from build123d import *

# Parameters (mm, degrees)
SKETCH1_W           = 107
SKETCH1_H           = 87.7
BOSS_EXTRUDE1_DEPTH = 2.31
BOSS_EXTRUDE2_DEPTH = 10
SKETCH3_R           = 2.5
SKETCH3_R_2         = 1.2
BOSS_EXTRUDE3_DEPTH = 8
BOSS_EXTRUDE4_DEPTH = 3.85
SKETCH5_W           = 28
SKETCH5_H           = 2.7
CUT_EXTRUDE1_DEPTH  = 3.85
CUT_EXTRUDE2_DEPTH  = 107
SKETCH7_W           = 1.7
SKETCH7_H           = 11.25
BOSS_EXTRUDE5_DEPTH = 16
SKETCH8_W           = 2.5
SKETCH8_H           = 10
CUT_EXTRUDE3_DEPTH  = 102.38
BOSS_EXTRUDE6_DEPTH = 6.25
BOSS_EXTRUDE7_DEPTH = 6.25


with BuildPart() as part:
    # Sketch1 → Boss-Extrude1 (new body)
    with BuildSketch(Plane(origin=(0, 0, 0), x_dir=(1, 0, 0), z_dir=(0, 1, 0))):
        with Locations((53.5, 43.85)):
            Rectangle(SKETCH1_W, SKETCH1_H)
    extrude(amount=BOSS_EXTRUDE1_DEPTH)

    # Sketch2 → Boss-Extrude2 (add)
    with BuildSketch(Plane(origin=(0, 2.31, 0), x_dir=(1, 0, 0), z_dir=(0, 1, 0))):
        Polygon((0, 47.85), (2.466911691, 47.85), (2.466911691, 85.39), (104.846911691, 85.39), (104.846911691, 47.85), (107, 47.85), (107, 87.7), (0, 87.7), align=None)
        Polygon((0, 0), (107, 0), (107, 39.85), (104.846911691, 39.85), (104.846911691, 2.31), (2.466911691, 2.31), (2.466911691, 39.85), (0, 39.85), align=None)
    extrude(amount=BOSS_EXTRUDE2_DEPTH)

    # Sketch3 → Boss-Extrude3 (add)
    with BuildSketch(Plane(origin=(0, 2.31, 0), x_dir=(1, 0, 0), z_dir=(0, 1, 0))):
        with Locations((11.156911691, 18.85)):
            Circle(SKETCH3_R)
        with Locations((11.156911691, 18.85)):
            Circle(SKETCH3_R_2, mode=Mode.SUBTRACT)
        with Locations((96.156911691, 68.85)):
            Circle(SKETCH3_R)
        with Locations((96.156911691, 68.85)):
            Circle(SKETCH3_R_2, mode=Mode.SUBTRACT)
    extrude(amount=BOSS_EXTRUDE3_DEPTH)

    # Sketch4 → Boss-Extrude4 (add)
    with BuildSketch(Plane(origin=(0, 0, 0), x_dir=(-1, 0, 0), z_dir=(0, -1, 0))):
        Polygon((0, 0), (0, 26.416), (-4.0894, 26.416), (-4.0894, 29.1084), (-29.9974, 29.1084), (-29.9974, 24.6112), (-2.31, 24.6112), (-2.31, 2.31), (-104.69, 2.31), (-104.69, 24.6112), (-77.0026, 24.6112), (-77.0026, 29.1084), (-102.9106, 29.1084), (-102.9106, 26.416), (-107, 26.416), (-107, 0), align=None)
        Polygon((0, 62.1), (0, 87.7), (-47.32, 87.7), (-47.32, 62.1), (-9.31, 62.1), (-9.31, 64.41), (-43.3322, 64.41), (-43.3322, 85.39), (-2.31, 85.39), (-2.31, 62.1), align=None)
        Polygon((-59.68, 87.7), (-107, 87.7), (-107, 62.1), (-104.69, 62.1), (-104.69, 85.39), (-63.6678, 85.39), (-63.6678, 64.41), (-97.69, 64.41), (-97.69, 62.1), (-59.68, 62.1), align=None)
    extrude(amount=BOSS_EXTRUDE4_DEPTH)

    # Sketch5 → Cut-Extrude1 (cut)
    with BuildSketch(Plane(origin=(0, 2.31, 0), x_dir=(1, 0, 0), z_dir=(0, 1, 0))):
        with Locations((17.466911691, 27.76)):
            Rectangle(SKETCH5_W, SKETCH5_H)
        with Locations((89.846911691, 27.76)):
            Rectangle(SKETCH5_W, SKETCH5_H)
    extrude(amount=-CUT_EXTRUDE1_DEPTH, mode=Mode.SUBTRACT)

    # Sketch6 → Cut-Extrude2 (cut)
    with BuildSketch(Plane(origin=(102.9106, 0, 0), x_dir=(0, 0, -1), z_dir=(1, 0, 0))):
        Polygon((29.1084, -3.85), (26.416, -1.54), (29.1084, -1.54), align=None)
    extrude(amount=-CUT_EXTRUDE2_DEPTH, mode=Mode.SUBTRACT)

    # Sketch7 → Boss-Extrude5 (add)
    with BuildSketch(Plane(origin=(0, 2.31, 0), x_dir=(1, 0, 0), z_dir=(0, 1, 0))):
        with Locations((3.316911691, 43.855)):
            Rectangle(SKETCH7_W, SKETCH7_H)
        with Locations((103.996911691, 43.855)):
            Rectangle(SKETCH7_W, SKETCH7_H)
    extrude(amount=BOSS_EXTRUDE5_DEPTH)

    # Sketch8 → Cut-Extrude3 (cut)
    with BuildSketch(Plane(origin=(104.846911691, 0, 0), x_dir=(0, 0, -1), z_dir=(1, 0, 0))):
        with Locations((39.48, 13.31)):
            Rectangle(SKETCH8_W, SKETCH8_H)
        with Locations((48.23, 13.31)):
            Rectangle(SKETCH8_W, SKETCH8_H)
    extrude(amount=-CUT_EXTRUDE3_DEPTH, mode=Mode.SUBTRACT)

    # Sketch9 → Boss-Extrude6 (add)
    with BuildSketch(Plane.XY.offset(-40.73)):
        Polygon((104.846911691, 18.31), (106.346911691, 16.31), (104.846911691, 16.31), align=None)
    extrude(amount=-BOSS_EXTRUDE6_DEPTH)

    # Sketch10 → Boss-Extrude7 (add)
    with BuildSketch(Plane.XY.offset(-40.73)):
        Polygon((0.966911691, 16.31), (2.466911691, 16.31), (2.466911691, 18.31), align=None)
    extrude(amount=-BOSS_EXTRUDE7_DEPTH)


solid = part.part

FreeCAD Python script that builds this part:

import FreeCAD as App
import Part
import Sketcher
from FreeCAD import Vector


def add_polygon(sketch, points):
    """Adds a closed chain of lines whose ends are joined by coincident constraints."""
    first, n = sketch.GeometryCount, len(points)
    for a, b in zip(points, points[1:] + points[:1]):
        sketch.addGeometry(Part.LineSegment(App.Vector(*a, 0), App.Vector(*b, 0)), False)
    for i in range(n):
        sketch.addConstraint(Sketcher.Constraint("Coincident", first + i, 2, first + (i + 1) % n, 1))

doc = App.newDocument("Part")
params = doc.addObject("Spreadsheet::Sheet", "Params")
for row, (alias, value) in enumerate([
    ("sketch1_width", "107 mm"),
    ("sketch1_height", "87.7 mm"),
    ("pad1_length", "2.31 mm"),
    ("sketch2_width", "107 mm"),
    ("sketch2_width2", "102.38 mm"),
    ("sketch2_height", "37.54 mm"),
    ("sketch2_height2", "39.85 mm"),
    ("pad2_length", "10 mm"),
    ("sketch3_diameter", "5 mm"),
    ("sketch3_diameter2", "2.4 mm"),
    ("pad3_length", "8 mm"),
    ("sketch4_width", "107 mm"),
    ("sketch4_height", "25.6 mm"),
    ("sketch4_width2", "102.38 mm"),
    ("sketch4_width3", "47.32 mm"),
    ("sketch4_height2", "20.98 mm"),
    ("pad4_length", "3.85 mm"),
    ("sketch5_width", "28 mm"),
    ("sketch5_height", "2.7 mm"),
    ("pocket1_length", "3.85 mm"),
    ("sketch6_width", "2.31 mm"),
    ("pocket2_length", "107 mm"),
    ("sketch7_width", "1.7 mm"),
    ("sketch7_height", "11.25 mm"),
    ("pad5_length", "16 mm"),
    ("sketch8_width", "10 mm"),
    ("sketch8_height", "2.5 mm"),
    ("pocket3_length", "102.38 mm"),
    ("sketch9_height", "2 mm"),
    ("sketch9_width", "1.5 mm"),
    ("pad6_length", "6.25 mm"),
    ("sketch10_height", "2 mm"),
    ("sketch10_width", "1.5 mm"),
    ("pad7_length", "6.25 mm"),
], start=1):
    params.set(f"A{row}", alias)
    params.set(f"B{row}", "=" + value)
    params.setAlias(f"B{row}", alias)

body = doc.addObject("PartDesign::Body", "Body")

# Sketch on XZ plane
sketch1 = doc.addObject("Sketcher::SketchObject", "Sketch")
body.addObject(sketch1)
sketch1.AttachmentSupport = (doc.XZ_Plane, [""])
sketch1.MapMode = "FlatFace"
add_polygon(sketch1, [(0, -88), (0, 0), (107, 0), (107, -88)])  # lines 0-3
sketch1.addConstraint(Sketcher.Constraint("Vertical", 0))
sketch1.addConstraint(Sketcher.Constraint("Horizontal", 1))
sketch1.addConstraint(Sketcher.Constraint("Vertical", 2))
sketch1.addConstraint(Sketcher.Constraint("Horizontal", 3))
sketch1.addConstraint(Sketcher.Constraint("Coincident", 0, 2, -1, 1))
sketch1.addConstraint(Sketcher.Constraint("DistanceX", 1, 1, 1, 2, 107.0))
sketch1.addConstraint(Sketcher.Constraint("DistanceY", 0, 1, 0, 2, 87.7))
sketch1.setExpression("Constraints[9]", "Params.sketch1_width")
sketch1.setExpression("Constraints[10]", "Params.sketch1_height")
pad1 = doc.addObject("PartDesign::Pad", "Pad")
body.addObject(pad1)
pad1.Profile = sketch1
pad1.setExpression("Length", "Params.pad1_length")
pad1.Reversed = True

# Sketch on XZ plane
sketch2 = doc.addObject("Sketcher::SketchObject", "Sketch001")
body.addObject(sketch2)
sketch2.AttachmentSupport = (doc.XZ_Plane, [""])
sketch2.MapMode = "FlatFace"
sketch2.AttachmentOffset = App.Placement(Vector(0, 0, -2.31), App.Rotation())
add_polygon(sketch2, [(0, -47.9), (2.5, -47.9), (2.5, -85.4), (104.8, -85.4), (104.8, -47.9), (107, -47.9), (107, -87.7), (0, -87.7)])  # lines 0-7
add_polygon(sketch2, [(0, 0), (107, 0), (107, -39.9), (104.8, -39.9), (104.8, -2.3), (2.5, -2.3), (2.5, -39.9), (0, -39.9)])  # lines 8-15
sketch2.addConstraint(Sketcher.Constraint("Horizontal", 0))
sketch2.addConstraint(Sketcher.Constraint("Vertical", 1))
sketch2.addConstraint(Sketcher.Constraint("Horizontal", 2))
sketch2.addConstraint(Sketcher.Constraint("Vertical", 3))
sketch2.addConstraint(Sketcher.Constraint("Horizontal", 4))
sketch2.addConstraint(Sketcher.Constraint("Vertical", 5))
sketch2.addConstraint(Sketcher.Constraint("Horizontal", 6))
sketch2.addConstraint(Sketcher.Constraint("Vertical", 7))
sketch2.addConstraint(Sketcher.Constraint("Horizontal", 8))
sketch2.addConstraint(Sketcher.Constraint("Vertical", 9))
sketch2.addConstraint(Sketcher.Constraint("Horizontal", 10))
sketch2.addConstraint(Sketcher.Constraint("Vertical", 11))
sketch2.addConstraint(Sketcher.Constraint("Horizontal", 12))
sketch2.addConstraint(Sketcher.Constraint("Vertical", 13))
sketch2.addConstraint(Sketcher.Constraint("Horizontal", 14))
sketch2.addConstraint(Sketcher.Constraint("Vertical", 15))
sketch2.addConstraint(Sketcher.Constraint("Coincident", 15, 2, -1, 1))
sketch2.addConstraint(Sketcher.Constraint("PointOnObject", 6, 2, -2))
sketch2.addConstraint(Sketcher.Constraint("Horizontal", 0, 2, 3, 2))
sketch2.addConstraint(Sketcher.Constraint("Horizontal", 10, 2, 13, 2))
sketch2.addConstraint(Sketcher.Constraint("Vertical", 5, 2, 8, 2))
sketch2.addConstraint(Sketcher.Constraint("Vertical", 3, 2, 10, 2))
sketch2.addConstraint(Sketcher.Constraint("Vertical", 1, 2, 12, 2))
sketch2.addConstraint(Sketcher.Constraint("Equal", 7, 9))
sketch2.addConstraint(Sketcher.Constraint("Equal", 3, 11))
sketch2.addConstraint(Sketcher.Constraint("DistanceX", 6, 2, 6, 1, 107.0))
sketch2.addConstraint(Sketcher.Constraint("DistanceY", 4, 2, 9, 2, 8.0))
sketch2.addConstraint(Sketcher.Constraint("DistanceX", 2, 1, 2, 2, 102.38))
sketch2.addConstraint(Sketcher.Constraint("DistanceY", 1, 2, 1, 1, 37.54))
sketch2.addConstraint(Sketcher.Constraint("DistanceY", 5, 2, 5, 1, 39.85))
sketch2.addConstraint(Sketcher.Constraint("DistanceX", 0, 1, 0, 2, 2.466912))
sketch2.setExpression("Constraints[41]", "Params.sketch2_width")
sketch2.setExpression("Constraints[43]", "Params.sketch2_width2")
sketch2.setExpression("Constraints[44]", "Params.sketch2_height")
sketch2.setExpression("Constraints[45]", "Params.sketch2_height2")
pad2 = doc.addObject("PartDesign::Pad", "Pad001")
body.addObject(pad2)
pad2.Profile = sketch2
pad2.setExpression("Length", "Params.pad2_length")
pad2.Reversed = True

# Sketch on XZ plane
sketch3 = doc.addObject("Sketcher::SketchObject", "Sketch002")
body.addObject(sketch3)
sketch3.AttachmentSupport = (doc.XZ_Plane, [""])
sketch3.MapMode = "FlatFace"
sketch3.AttachmentOffset = App.Placement(Vector(0, 0, -2.31), App.Rotation())
sketch3.addGeometry(Part.Circle(Vector(11.2, -18.9, 0), Vector(0, 0, 1), 2.5), False)
sketch3.addGeometry(Part.Circle(Vector(11.2, -18.9, 0), Vector(0, 0, 1), 1.2), False)
sketch3.addGeometry(Part.Circle(Vector(96.2, -68.8, 0), Vector(0, 0, 1), 2.5), False)
sketch3.addGeometry(Part.Circle(Vector(96.2, -68.8, 0), Vector(0, 0, 1), 1.2), False)
sketch3.addConstraint(Sketcher.Constraint("Coincident", 1, 3, 0, 3))
sketch3.addConstraint(Sketcher.Constraint("Coincident", 3, 3, 2, 3))
sketch3.addConstraint(Sketcher.Constraint("Equal", 0, 2))
sketch3.addConstraint(Sketcher.Constraint("Equal", 1, 3))
sketch3.addConstraint(Sketcher.Constraint("Diameter", 0, 5.0))
sketch3.addConstraint(Sketcher.Constraint("Diameter", 1, 2.4))
sketch3.addConstraint(Sketcher.Constraint("DistanceX", 0, 3, 2, 3, 85.0))
sketch3.addConstraint(Sketcher.Constraint("DistanceY", 2, 3, 0, 3, 50.0))
sketch3.addConstraint(Sketcher.Constraint("DistanceY", 0, 3, -1, 1, 18.85))
sketch3.addConstraint(Sketcher.Constraint("DistanceX", -1, 1, 0, 3, 11.156912))
sketch3.setExpression("Constraints[4]", "Params.sketch3_diameter")
sketch3.setExpression("Constraints[5]", "Params.sketch3_diameter2")
pad3 = doc.addObject("PartDesign::Pad", "Pad002")
body.addObject(pad3)
pad3.Profile = sketch3
pad3.setExpression("Length", "Params.pad3_length")
pad3.Reversed = True

# Sketch on XZ plane
sketch4 = doc.addObject("Sketcher::SketchObject", "Sketch003")
body.addObject(sketch4)
sketch4.AttachmentSupport = (doc.XZ_Plane, [""])
sketch4.MapMode = "FlatFace"
add_polygon(sketch4, [(0, 0), (0, -26.4), (4.1, -26.4), (4.1, -29.1), (30, -29.1), (30, -24.6), (2.3, -24.6), (2.3, -2.3), (104.7, -2.3), (104.7, -24.6), (77, -24.6), (77, -29.1), (102.9, -29.1), (102.9, -26.4), (107, -26.4), (107, 0)])  # lines 0-15
add_polygon(sketch4, [(0, -62.1), (0, -87.7), (47.3, -87.7), (47.3, -62.1), (9.3, -62.1), (9.3, -64.4), (43.3, -64.4), (43.3, -85.4), (2.3, -85.4), (2.3, -62.1)])  # lines 16-25
add_polygon(sketch4, [(59.7, -87.7), (107, -87.7), (107, -62.1), (104.7, -62.1), (104.7, -85.4), (63.7, -85.4), (63.7, -64.4), (97.7, -64.4), (97.7, -62.1), (59.7, -62.1)])  # lines 26-35
sketch4.addConstraint(Sketcher.Constraint("Vertical", 0))
sketch4.addConstraint(Sketcher.Constraint("Horizontal", 1))
sketch4.addConstraint(Sketcher.Constraint("Vertical", 2))
sketch4.addConstraint(Sketcher.Constraint("Horizontal", 3))
sketch4.addConstraint(Sketcher.Constraint("Vertical", 4))
sketch4.addConstraint(Sketcher.Constraint("Horizontal", 5))
sketch4.addConstraint(Sketcher.Constraint("Vertical", 6))
sketch4.addConstraint(Sketcher.Constraint("Horizontal", 7))
sketch4.addConstraint(Sketcher.Constraint("Vertical", 8))
sketch4.addConstraint(Sketcher.Constraint("Horizontal", 9))
sketch4.addConstraint(Sketcher.Constraint("Vertical", 10))
sketch4.addConstraint(Sketcher.Constraint("Horizontal", 11))
sketch4.addConstraint(Sketcher.Constraint("Vertical", 12))
sketch4.addConstraint(Sketcher.Constraint("Horizontal", 13))
sketch4.addConstraint(Sketcher.Constraint("Vertical", 14))
sketch4.addConstraint(Sketcher.Constraint("Horizontal", 15))
sketch4.addConstraint(Sketcher.Constraint("Vertical", 16))
sketch4.addConstraint(Sketcher.Constraint("Horizontal", 17))
sketch4.addConstraint(Sketcher.Constraint("Vertical", 18))
sketch4.addConstraint(Sketcher.Constraint("Horizontal", 19))
sketch4.addConstraint(Sketcher.Constraint("Vertical", 20))
sketch4.addConstraint(Sketcher.Constraint("Horizontal", 21))
sketch4.addConstraint(Sketcher.Constraint("Vertical", 22))
sketch4.addConstraint(Sketcher.Constraint("Horizontal", 23))
sketch4.addConstraint(Sketcher.Constraint("Vertical", 24))
sketch4.addConstraint(Sketcher.Constraint("Horizontal", 25))
sketch4.addConstraint(Sketcher.Constraint("Horizontal", 26))
sketch4.addConstraint(Sketcher.Constraint("Vertical", 27))
sketch4.addConstraint(Sketcher.Constraint("Horizontal", 28))
sketch4.addConstraint(Sketcher.Constraint("Vertical", 29))
sketch4.addConstraint(Sketcher.Constraint("Horizontal", 30))
sketch4.addConstraint(Sketcher.Constraint("Vertical", 31))
sketch4.addConstraint(Sketcher.Constraint("Horizontal", 32))
sketch4.addConstraint(Sketcher.Constraint("Vertical", 33))
sketch4.addConstraint(Sketcher.Constraint("Horizontal", 34))
sketch4.addConstraint(Sketcher.Constraint("Vertical", 35))
sketch4.addConstraint(Sketcher.Constraint("Coincident", 15, 2, -1, 1))
sketch4.addConstraint(Sketcher.Constraint("PointOnObject", 16, 2, -2))
sketch4.addConstraint(Sketcher.Constraint("Horizontal", 5, 2, 8, 2))
sketch4.addConstraint(Sketcher.Constraint("Horizontal", 3, 2, 10, 2))
sketch4.addConstraint(Sketcher.Constraint("Horizontal", 1, 2, 12, 2))
sketch4.addConstraint(Sketcher.Constraint("Horizontal", 19, 2, 24, 2))
sketch4.addConstraint(Sketcher.Constraint("Horizontal", 17, 2, 26, 2))
sketch4.addConstraint(Sketcher.Constraint("Horizontal", 25, 2, 27, 2))
sketch4.addConstraint(Sketcher.Constraint("Horizontal", 23, 2, 29, 2))
sketch4.addConstraint(Sketcher.Constraint("Horizontal", 21, 2, 31, 2))
sketch4.addConstraint(Sketcher.Constraint("Horizontal", 28, 2, 33, 2))
sketch4.addConstraint(Sketcher.Constraint("Vertical", 6, 2, 23, 2))
sketch4.addConstraint(Sketcher.Constraint("Vertical", 14, 2, 26, 2))
sketch4.addConstraint(Sketcher.Constraint("Vertical", 8, 2, 28, 2))
sketch4.addConstraint(Sketcher.Constraint("Equal", 5, 9))
sketch4.addConstraint(Sketcher.Constraint("Equal", 3, 11))
sketch4.addConstraint(Sketcher.Constraint("Equal", 1, 13))
sketch4.addConstraint(Sketcher.Constraint("Equal", 17, 26))
sketch4.addConstraint(Sketcher.Constraint("Equal", 23, 30))
sketch4.addConstraint(Sketcher.Constraint("Equal", 21, 32))
sketch4.addConstraint(Sketcher.Constraint("Equal", 28, 20))
sketch4.addConstraint(Sketcher.Constraint("DistanceX", 15, 2, 15, 1, 107.0))
sketch4.addConstraint(Sketcher.Constraint("DistanceY", 16, 2, 16, 1, 25.6))
sketch4.addConstraint(Sketcher.Constraint("DistanceX", 23, 2, 20, 2, 7.0))
sketch4.addConstraint(Sketcher.Constraint("DistanceX", 7, 1, 7, 2, 102.38))
sketch4.addConstraint(Sketcher.Constraint("DistanceX", 17, 1, 17, 2, 47.32))
sketch4.addConstraint(Sketcher.Constraint("DistanceY", 22, 2, 22, 1, 20.98))
sketch4.addConstraint(Sketcher.Constraint("DistanceY", 16, 2, -1, 1, 87.7))
sketch4.addConstraint(Sketcher.Constraint("DistanceX", 3, 1, 3, 2, 25.908))
sketch4.addConstraint(Sketcher.Constraint("DistanceY", 0, 2, 0, 1, 26.416))
sketch4.addConstraint(Sketcher.Constraint("DistanceY", 6, 2, -1, 1, 2.31))
sketch4.addConstraint(Sketcher.Constraint("DistanceX", 1, 1, 1, 2, 4.0894))
sketch4.addConstraint(Sketcher.Constraint("DistanceX", 21, 1, 21, 2, 34.0222))
sketch4.addConstraint(Sketcher.Constraint("DistanceY", 2, 2, 2, 1, 2.6924))
sketch4.addConstraint(Sketcher.Constraint("DistanceY", 4, 1, 4, 2, 4.4972))
sketch4.setExpression("Constraints[93]", "Params.sketch4_width")
sketch4.setExpression("Constraints[94]", "Params.sketch4_height")
sketch4.setExpression("Constraints[96]", "Params.sketch4_width2")
sketch4.setExpression("Constraints[97]", "Params.sketch4_width3")
sketch4.setExpression("Constraints[98]", "Params.sketch4_height2")
pad4 = doc.addObject("PartDesign::Pad", "Pad003")
body.addObject(pad4)
pad4.Profile = sketch4
pad4.setExpression("Length", "Params.pad4_length")

# Sketch on XZ plane
sketch5 = doc.addObject("Sketcher::SketchObject", "Sketch004")
body.addObject(sketch5)
sketch5.AttachmentSupport = (doc.XZ_Plane, [""])
sketch5.MapMode = "FlatFace"
sketch5.AttachmentOffset = App.Placement(Vector(0, 0, -2.31), App.Rotation())
add_polygon(sketch5, [(3.5, -29.1), (3.5, -26.4), (31.5, -26.4), (31.5, -29.1)])  # lines 0-3
add_polygon(sketch5, [(75.8, -29.1), (75.8, -26.4), (103.8, -26.4), (103.8, -29.1)])  # lines 4-7
sketch5.addConstraint(Sketcher.Constraint("Vertical", 0))
sketch5.addConstraint(Sketcher.Constraint("Horizontal", 1))
sketch5.addConstraint(Sketcher.Constraint("Vertical", 2))
sketch5.addConstraint(Sketcher.Constraint("Horizontal", 3))
sketch5.addConstraint(Sketcher.Constraint("Vertical", 4))
sketch5.addConstraint(Sketcher.Constraint("Horizontal", 5))
sketch5.addConstraint(Sketcher.Constraint("Vertical", 6))
sketch5.addConstraint(Sketcher.Constraint("Horizontal", 7))
sketch5.addConstraint(Sketcher.Constraint("Horizontal", 1, 2, 4, 2))
sketch5.addConstraint(Sketcher.Constraint("Horizontal", 3, 2, 6, 2))
sketch5.addConstraint(Sketcher.Constraint("Equal", 3, 5))
sketch5.addConstraint(Sketcher.Constraint("DistanceX", 1, 1, 1, 2, 28.0))
sketch5.addConstraint(Sketcher.Constraint("DistanceY", 0, 1, 0, 2, 2.7))
sketch5.addConstraint(Sketcher.Constraint("DistanceY", 0, 2, -1, 1, 26.41))
sketch5.addConstraint(Sketcher.Constraint("DistanceX", 1, 2, 4, 2, 44.38))
sketch5.addConstraint(Sketcher.Constraint("DistanceX", -1, 1, 0, 2, 3.466912))
sketch5.setExpression("Constraints[19]", "Params.sketch5_width")
sketch5.setExpression("Constraints[20]", "Params.sketch5_height")
pocket1 = doc.addObject("PartDesign::Pocket", "Pocket")
body.addObject(pocket1)
pocket1.Profile = sketch5
pocket1.setExpression("Length", "Params.pocket1_length")
pocket1.Reversed = True

# Sketch on YZ plane
sketch6 = doc.addObject("Sketcher::SketchObject", "Sketch005")
body.addObject(sketch6)
sketch6.AttachmentSupport = (doc.YZ_Plane, [""])
sketch6.MapMode = "FlatFace"
sketch6.AttachmentOffset = App.Placement(Vector(0, 0, 102.9106), App.Rotation())
add_polygon(sketch6, [(-1.5, -26.4), (-3.9, -29.1), (-1.5, -29.1)])  # lines 0-2
sketch6.addConstraint(Sketcher.Constraint("Horizontal", 1))
sketch6.addConstraint(Sketcher.Constraint("Vertical", 2))
sketch6.addConstraint(Sketcher.Constraint("DistanceX", 1, 1, 1, 2, 2.31))
sketch6.addConstraint(Sketcher.Constraint("DistanceX", 0, 2, -1, 1, 3.85))
sketch6.addConstraint(Sketcher.Constraint("DistanceY", 2, 1, 2, 2, 2.6924))
sketch6.addConstraint(Sketcher.Constraint("DistanceY", 2, 2, -1, 1, 26.416))
sketch6.setExpression("Constraints[5]", "Params.sketch6_width")
pocket2 = doc.addObject("PartDesign::Pocket", "Pocket001")
body.addObject(pocket2)
pocket2.Profile = sketch6
pocket2.setExpression("Length", "Params.pocket2_length")

# Sketch on XZ plane
sketch7 = doc.addObject("Sketcher::SketchObject", "Sketch006")
body.addObject(sketch7)
sketch7.AttachmentSupport = (doc.XZ_Plane, [""])
sketch7.MapMode = "FlatFace"
sketch7.AttachmentOffset = App.Placement(Vector(0, 0, -2.31), App.Rotation())
add_polygon(sketch7, [(2.5, -49.5), (2.5, -38.2), (4.2, -38.2), (4.2, -49.5)])  # lines 0-3
add_polygon(sketch7, [(103.1, -49.5), (103.1, -38.2), (104.8, -38.2), (104.8, -49.5)])  # lines 4-7
sketch7.addConstraint(Sketcher.Constraint("Vertical", 0))
sketch7.addConstraint(Sketcher.Constraint("Horizontal", 1))
sketch7.addConstraint(Sketcher.Constraint("Vertical", 2))
sketch7.addConstraint(Sketcher.Constraint("Horizontal", 3))
sketch7.addConstraint(Sketcher.Constraint("Vertical", 4))
sketch7.addConstraint(Sketcher.Constraint("Horizontal", 5))
sketch7.addConstraint(Sketcher.Constraint("Vertical", 6))
sketch7.addConstraint(Sketcher.Constraint("Horizontal", 7))
sketch7.addConstraint(Sketcher.Constraint("Horizontal", 1, 2, 4, 2))
sketch7.addConstraint(Sketcher.Constraint("Horizontal", 3, 2, 6, 2))
sketch7.addConstraint(Sketcher.Constraint("Equal", 3, 5))
sketch7.addConstraint(Sketcher.Constraint("DistanceX", 1, 1, 1, 2, 1.7))
sketch7.addConstraint(Sketcher.Constraint("DistanceY", 0, 1, 0, 2, 11.25))
sketch7.addConstraint(Sketcher.Constraint("DistanceY", 0, 2, -1, 1, 38.23))
sketch7.addConstraint(Sketcher.Constraint("DistanceX", 1, 2, 4, 2, 98.98))
sketch7.addConstraint(Sketcher.Constraint("DistanceX", -1, 1, 0, 2, 2.466912))
sketch7.setExpression("Constraints[19]", "Params.sketch7_width")
sketch7.setExpression("Constraints[20]", "Params.sketch7_height")
pad5 = doc.addObject("PartDesign::Pad", "Pad004")
body.addObject(pad5)
pad5.Profile = sketch7
pad5.setExpression("Length", "Params.pad5_length")
pad5.Reversed = True

# Sketch on YZ plane
sketch8 = doc.addObject("Sketcher::SketchObject", "Sketch007")
body.addObject(sketch8)
sketch8.AttachmentSupport = (doc.YZ_Plane, [""])
sketch8.MapMode = "FlatFace"
sketch8.AttachmentOffset = App.Placement(Vector(0, 0, 104.846912), App.Rotation())
add_polygon(sketch8, [(18.3, -38.2), (8.3, -38.2), (8.3, -40.7), (18.3, -40.7)])  # lines 0-3
add_polygon(sketch8, [(18.3, -47), (8.3, -47), (8.3, -49.5), (18.3, -49.5)])  # lines 4-7
sketch8.addConstraint(Sketcher.Constraint("Horizontal", 0))
sketch8.addConstraint(Sketcher.Constraint("Vertical", 1))
sketch8.addConstraint(Sketcher.Constraint("Horizontal", 2))
sketch8.addConstraint(Sketcher.Constraint("Vertical", 3))
sketch8.addConstraint(Sketcher.Constraint("Horizontal", 4))
sketch8.addConstraint(Sketcher.Constraint("Vertical", 5))
sketch8.addConstraint(Sketcher.Constraint("Horizontal", 6))
sketch8.addConstraint(Sketcher.Constraint("Vertical", 7))
sketch8.addConstraint(Sketcher.Constraint("Vertical", 1, 2, 4, 2))
sketch8.addConstraint(Sketcher.Constraint("Vertical", 3, 2, 6, 2))
sketch8.addConstraint(Sketcher.Constraint("Equal", 3, 5))
sketch8.addConstraint(Sketcher.Constraint("DistanceX", 0, 2, 0, 1, 10.0))
sketch8.addConstraint(Sketcher.Constraint("DistanceY", 1, 2, 1, 1, 2.5))
sketch8.addConstraint(Sketcher.Constraint("DistanceX", -1, 1, 0, 2, 8.31))
sketch8.addConstraint(Sketcher.Constraint("DistanceY", 0, 2, -1, 1, 38.23))
sketch8.addConstraint(Sketcher.Constraint("DistanceY", 4, 2, -1, 1, 46.98))
sketch8.setExpression("Constraints[19]", "Params.sketch8_width")
sketch8.setExpression("Constraints[20]", "Params.sketch8_height")
pocket3 = doc.addObject("PartDesign::Pocket", "Pocket002")
body.addObject(pocket3)
pocket3.Profile = sketch8
pocket3.setExpression("Length", "Params.pocket3_length")

# Sketch on XY plane
sketch9 = doc.addObject("Sketcher::SketchObject", "Sketch008")
body.addObject(sketch9)
sketch9.AttachmentSupport = (doc.XY_Plane, [""])
sketch9.MapMode = "FlatFace"
sketch9.AttachmentOffset = App.Placement(Vector(0, 0, -40.73), App.Rotation())
add_polygon(sketch9, [(106.3, 16.3), (104.8, 18.3), (104.8, 16.3)])  # lines 0-2
sketch9.addConstraint(Sketcher.Constraint("Vertical", 1))
sketch9.addConstraint(Sketcher.Constraint("Horizontal", 2))
sketch9.addConstraint(Sketcher.Constraint("DistanceY", 1, 2, 1, 1, 2.0))
sketch9.addConstraint(Sketcher.Constraint("DistanceX", 2, 1, 2, 2, 1.5))
sketch9.addConstraint(Sketcher.Constraint("DistanceY", -1, 1, 0, 2, 18.31))
sketch9.addConstraint(Sketcher.Constraint("DistanceX", -1, 1, 0, 2, 104.846912))
sketch9.setExpression("Constraints[5]", "Params.sketch9_height")
sketch9.setExpression("Constraints[6]", "Params.sketch9_width")
pad6 = doc.addObject("PartDesign::Pad", "Pad005")
body.addObject(pad6)
pad6.Profile = sketch9
pad6.setExpression("Length", "Params.pad6_length")
pad6.Reversed = True

# Sketch on XY plane
sketch10 = doc.addObject("Sketcher::SketchObject", "Sketch009")
body.addObject(sketch10)
sketch10.AttachmentSupport = (doc.XY_Plane, [""])
sketch10.MapMode = "FlatFace"
sketch10.AttachmentOffset = App.Placement(Vector(0, 0, -40.73), App.Rotation())
add_polygon(sketch10, [(1, 16.3), (2.5, 16.3), (2.5, 18.3)])  # lines 0-2
sketch10.addConstraint(Sketcher.Constraint("Horizontal", 0))
sketch10.addConstraint(Sketcher.Constraint("Vertical", 1))
sketch10.addConstraint(Sketcher.Constraint("DistanceY", 1, 1, 1, 2, 2.0))
sketch10.addConstraint(Sketcher.Constraint("DistanceX", 0, 1, 0, 2, 1.5))
sketch10.addConstraint(Sketcher.Constraint("DistanceY", -1, 1, 0, 2, 16.31))
sketch10.addConstraint(Sketcher.Constraint("DistanceX", -1, 1, 0, 2, 2.466912))
sketch10.setExpression("Constraints[5]", "Params.sketch10_height")
sketch10.setExpression("Constraints[6]", "Params.sketch10_width")
pad7 = doc.addObject("PartDesign::Pad", "Pad006")
body.addObject(pad7)
pad7.Profile = sketch10
pad7.setExpression("Length", "Params.pad7_length")
pad7.Reversed = True

doc.recompute()
